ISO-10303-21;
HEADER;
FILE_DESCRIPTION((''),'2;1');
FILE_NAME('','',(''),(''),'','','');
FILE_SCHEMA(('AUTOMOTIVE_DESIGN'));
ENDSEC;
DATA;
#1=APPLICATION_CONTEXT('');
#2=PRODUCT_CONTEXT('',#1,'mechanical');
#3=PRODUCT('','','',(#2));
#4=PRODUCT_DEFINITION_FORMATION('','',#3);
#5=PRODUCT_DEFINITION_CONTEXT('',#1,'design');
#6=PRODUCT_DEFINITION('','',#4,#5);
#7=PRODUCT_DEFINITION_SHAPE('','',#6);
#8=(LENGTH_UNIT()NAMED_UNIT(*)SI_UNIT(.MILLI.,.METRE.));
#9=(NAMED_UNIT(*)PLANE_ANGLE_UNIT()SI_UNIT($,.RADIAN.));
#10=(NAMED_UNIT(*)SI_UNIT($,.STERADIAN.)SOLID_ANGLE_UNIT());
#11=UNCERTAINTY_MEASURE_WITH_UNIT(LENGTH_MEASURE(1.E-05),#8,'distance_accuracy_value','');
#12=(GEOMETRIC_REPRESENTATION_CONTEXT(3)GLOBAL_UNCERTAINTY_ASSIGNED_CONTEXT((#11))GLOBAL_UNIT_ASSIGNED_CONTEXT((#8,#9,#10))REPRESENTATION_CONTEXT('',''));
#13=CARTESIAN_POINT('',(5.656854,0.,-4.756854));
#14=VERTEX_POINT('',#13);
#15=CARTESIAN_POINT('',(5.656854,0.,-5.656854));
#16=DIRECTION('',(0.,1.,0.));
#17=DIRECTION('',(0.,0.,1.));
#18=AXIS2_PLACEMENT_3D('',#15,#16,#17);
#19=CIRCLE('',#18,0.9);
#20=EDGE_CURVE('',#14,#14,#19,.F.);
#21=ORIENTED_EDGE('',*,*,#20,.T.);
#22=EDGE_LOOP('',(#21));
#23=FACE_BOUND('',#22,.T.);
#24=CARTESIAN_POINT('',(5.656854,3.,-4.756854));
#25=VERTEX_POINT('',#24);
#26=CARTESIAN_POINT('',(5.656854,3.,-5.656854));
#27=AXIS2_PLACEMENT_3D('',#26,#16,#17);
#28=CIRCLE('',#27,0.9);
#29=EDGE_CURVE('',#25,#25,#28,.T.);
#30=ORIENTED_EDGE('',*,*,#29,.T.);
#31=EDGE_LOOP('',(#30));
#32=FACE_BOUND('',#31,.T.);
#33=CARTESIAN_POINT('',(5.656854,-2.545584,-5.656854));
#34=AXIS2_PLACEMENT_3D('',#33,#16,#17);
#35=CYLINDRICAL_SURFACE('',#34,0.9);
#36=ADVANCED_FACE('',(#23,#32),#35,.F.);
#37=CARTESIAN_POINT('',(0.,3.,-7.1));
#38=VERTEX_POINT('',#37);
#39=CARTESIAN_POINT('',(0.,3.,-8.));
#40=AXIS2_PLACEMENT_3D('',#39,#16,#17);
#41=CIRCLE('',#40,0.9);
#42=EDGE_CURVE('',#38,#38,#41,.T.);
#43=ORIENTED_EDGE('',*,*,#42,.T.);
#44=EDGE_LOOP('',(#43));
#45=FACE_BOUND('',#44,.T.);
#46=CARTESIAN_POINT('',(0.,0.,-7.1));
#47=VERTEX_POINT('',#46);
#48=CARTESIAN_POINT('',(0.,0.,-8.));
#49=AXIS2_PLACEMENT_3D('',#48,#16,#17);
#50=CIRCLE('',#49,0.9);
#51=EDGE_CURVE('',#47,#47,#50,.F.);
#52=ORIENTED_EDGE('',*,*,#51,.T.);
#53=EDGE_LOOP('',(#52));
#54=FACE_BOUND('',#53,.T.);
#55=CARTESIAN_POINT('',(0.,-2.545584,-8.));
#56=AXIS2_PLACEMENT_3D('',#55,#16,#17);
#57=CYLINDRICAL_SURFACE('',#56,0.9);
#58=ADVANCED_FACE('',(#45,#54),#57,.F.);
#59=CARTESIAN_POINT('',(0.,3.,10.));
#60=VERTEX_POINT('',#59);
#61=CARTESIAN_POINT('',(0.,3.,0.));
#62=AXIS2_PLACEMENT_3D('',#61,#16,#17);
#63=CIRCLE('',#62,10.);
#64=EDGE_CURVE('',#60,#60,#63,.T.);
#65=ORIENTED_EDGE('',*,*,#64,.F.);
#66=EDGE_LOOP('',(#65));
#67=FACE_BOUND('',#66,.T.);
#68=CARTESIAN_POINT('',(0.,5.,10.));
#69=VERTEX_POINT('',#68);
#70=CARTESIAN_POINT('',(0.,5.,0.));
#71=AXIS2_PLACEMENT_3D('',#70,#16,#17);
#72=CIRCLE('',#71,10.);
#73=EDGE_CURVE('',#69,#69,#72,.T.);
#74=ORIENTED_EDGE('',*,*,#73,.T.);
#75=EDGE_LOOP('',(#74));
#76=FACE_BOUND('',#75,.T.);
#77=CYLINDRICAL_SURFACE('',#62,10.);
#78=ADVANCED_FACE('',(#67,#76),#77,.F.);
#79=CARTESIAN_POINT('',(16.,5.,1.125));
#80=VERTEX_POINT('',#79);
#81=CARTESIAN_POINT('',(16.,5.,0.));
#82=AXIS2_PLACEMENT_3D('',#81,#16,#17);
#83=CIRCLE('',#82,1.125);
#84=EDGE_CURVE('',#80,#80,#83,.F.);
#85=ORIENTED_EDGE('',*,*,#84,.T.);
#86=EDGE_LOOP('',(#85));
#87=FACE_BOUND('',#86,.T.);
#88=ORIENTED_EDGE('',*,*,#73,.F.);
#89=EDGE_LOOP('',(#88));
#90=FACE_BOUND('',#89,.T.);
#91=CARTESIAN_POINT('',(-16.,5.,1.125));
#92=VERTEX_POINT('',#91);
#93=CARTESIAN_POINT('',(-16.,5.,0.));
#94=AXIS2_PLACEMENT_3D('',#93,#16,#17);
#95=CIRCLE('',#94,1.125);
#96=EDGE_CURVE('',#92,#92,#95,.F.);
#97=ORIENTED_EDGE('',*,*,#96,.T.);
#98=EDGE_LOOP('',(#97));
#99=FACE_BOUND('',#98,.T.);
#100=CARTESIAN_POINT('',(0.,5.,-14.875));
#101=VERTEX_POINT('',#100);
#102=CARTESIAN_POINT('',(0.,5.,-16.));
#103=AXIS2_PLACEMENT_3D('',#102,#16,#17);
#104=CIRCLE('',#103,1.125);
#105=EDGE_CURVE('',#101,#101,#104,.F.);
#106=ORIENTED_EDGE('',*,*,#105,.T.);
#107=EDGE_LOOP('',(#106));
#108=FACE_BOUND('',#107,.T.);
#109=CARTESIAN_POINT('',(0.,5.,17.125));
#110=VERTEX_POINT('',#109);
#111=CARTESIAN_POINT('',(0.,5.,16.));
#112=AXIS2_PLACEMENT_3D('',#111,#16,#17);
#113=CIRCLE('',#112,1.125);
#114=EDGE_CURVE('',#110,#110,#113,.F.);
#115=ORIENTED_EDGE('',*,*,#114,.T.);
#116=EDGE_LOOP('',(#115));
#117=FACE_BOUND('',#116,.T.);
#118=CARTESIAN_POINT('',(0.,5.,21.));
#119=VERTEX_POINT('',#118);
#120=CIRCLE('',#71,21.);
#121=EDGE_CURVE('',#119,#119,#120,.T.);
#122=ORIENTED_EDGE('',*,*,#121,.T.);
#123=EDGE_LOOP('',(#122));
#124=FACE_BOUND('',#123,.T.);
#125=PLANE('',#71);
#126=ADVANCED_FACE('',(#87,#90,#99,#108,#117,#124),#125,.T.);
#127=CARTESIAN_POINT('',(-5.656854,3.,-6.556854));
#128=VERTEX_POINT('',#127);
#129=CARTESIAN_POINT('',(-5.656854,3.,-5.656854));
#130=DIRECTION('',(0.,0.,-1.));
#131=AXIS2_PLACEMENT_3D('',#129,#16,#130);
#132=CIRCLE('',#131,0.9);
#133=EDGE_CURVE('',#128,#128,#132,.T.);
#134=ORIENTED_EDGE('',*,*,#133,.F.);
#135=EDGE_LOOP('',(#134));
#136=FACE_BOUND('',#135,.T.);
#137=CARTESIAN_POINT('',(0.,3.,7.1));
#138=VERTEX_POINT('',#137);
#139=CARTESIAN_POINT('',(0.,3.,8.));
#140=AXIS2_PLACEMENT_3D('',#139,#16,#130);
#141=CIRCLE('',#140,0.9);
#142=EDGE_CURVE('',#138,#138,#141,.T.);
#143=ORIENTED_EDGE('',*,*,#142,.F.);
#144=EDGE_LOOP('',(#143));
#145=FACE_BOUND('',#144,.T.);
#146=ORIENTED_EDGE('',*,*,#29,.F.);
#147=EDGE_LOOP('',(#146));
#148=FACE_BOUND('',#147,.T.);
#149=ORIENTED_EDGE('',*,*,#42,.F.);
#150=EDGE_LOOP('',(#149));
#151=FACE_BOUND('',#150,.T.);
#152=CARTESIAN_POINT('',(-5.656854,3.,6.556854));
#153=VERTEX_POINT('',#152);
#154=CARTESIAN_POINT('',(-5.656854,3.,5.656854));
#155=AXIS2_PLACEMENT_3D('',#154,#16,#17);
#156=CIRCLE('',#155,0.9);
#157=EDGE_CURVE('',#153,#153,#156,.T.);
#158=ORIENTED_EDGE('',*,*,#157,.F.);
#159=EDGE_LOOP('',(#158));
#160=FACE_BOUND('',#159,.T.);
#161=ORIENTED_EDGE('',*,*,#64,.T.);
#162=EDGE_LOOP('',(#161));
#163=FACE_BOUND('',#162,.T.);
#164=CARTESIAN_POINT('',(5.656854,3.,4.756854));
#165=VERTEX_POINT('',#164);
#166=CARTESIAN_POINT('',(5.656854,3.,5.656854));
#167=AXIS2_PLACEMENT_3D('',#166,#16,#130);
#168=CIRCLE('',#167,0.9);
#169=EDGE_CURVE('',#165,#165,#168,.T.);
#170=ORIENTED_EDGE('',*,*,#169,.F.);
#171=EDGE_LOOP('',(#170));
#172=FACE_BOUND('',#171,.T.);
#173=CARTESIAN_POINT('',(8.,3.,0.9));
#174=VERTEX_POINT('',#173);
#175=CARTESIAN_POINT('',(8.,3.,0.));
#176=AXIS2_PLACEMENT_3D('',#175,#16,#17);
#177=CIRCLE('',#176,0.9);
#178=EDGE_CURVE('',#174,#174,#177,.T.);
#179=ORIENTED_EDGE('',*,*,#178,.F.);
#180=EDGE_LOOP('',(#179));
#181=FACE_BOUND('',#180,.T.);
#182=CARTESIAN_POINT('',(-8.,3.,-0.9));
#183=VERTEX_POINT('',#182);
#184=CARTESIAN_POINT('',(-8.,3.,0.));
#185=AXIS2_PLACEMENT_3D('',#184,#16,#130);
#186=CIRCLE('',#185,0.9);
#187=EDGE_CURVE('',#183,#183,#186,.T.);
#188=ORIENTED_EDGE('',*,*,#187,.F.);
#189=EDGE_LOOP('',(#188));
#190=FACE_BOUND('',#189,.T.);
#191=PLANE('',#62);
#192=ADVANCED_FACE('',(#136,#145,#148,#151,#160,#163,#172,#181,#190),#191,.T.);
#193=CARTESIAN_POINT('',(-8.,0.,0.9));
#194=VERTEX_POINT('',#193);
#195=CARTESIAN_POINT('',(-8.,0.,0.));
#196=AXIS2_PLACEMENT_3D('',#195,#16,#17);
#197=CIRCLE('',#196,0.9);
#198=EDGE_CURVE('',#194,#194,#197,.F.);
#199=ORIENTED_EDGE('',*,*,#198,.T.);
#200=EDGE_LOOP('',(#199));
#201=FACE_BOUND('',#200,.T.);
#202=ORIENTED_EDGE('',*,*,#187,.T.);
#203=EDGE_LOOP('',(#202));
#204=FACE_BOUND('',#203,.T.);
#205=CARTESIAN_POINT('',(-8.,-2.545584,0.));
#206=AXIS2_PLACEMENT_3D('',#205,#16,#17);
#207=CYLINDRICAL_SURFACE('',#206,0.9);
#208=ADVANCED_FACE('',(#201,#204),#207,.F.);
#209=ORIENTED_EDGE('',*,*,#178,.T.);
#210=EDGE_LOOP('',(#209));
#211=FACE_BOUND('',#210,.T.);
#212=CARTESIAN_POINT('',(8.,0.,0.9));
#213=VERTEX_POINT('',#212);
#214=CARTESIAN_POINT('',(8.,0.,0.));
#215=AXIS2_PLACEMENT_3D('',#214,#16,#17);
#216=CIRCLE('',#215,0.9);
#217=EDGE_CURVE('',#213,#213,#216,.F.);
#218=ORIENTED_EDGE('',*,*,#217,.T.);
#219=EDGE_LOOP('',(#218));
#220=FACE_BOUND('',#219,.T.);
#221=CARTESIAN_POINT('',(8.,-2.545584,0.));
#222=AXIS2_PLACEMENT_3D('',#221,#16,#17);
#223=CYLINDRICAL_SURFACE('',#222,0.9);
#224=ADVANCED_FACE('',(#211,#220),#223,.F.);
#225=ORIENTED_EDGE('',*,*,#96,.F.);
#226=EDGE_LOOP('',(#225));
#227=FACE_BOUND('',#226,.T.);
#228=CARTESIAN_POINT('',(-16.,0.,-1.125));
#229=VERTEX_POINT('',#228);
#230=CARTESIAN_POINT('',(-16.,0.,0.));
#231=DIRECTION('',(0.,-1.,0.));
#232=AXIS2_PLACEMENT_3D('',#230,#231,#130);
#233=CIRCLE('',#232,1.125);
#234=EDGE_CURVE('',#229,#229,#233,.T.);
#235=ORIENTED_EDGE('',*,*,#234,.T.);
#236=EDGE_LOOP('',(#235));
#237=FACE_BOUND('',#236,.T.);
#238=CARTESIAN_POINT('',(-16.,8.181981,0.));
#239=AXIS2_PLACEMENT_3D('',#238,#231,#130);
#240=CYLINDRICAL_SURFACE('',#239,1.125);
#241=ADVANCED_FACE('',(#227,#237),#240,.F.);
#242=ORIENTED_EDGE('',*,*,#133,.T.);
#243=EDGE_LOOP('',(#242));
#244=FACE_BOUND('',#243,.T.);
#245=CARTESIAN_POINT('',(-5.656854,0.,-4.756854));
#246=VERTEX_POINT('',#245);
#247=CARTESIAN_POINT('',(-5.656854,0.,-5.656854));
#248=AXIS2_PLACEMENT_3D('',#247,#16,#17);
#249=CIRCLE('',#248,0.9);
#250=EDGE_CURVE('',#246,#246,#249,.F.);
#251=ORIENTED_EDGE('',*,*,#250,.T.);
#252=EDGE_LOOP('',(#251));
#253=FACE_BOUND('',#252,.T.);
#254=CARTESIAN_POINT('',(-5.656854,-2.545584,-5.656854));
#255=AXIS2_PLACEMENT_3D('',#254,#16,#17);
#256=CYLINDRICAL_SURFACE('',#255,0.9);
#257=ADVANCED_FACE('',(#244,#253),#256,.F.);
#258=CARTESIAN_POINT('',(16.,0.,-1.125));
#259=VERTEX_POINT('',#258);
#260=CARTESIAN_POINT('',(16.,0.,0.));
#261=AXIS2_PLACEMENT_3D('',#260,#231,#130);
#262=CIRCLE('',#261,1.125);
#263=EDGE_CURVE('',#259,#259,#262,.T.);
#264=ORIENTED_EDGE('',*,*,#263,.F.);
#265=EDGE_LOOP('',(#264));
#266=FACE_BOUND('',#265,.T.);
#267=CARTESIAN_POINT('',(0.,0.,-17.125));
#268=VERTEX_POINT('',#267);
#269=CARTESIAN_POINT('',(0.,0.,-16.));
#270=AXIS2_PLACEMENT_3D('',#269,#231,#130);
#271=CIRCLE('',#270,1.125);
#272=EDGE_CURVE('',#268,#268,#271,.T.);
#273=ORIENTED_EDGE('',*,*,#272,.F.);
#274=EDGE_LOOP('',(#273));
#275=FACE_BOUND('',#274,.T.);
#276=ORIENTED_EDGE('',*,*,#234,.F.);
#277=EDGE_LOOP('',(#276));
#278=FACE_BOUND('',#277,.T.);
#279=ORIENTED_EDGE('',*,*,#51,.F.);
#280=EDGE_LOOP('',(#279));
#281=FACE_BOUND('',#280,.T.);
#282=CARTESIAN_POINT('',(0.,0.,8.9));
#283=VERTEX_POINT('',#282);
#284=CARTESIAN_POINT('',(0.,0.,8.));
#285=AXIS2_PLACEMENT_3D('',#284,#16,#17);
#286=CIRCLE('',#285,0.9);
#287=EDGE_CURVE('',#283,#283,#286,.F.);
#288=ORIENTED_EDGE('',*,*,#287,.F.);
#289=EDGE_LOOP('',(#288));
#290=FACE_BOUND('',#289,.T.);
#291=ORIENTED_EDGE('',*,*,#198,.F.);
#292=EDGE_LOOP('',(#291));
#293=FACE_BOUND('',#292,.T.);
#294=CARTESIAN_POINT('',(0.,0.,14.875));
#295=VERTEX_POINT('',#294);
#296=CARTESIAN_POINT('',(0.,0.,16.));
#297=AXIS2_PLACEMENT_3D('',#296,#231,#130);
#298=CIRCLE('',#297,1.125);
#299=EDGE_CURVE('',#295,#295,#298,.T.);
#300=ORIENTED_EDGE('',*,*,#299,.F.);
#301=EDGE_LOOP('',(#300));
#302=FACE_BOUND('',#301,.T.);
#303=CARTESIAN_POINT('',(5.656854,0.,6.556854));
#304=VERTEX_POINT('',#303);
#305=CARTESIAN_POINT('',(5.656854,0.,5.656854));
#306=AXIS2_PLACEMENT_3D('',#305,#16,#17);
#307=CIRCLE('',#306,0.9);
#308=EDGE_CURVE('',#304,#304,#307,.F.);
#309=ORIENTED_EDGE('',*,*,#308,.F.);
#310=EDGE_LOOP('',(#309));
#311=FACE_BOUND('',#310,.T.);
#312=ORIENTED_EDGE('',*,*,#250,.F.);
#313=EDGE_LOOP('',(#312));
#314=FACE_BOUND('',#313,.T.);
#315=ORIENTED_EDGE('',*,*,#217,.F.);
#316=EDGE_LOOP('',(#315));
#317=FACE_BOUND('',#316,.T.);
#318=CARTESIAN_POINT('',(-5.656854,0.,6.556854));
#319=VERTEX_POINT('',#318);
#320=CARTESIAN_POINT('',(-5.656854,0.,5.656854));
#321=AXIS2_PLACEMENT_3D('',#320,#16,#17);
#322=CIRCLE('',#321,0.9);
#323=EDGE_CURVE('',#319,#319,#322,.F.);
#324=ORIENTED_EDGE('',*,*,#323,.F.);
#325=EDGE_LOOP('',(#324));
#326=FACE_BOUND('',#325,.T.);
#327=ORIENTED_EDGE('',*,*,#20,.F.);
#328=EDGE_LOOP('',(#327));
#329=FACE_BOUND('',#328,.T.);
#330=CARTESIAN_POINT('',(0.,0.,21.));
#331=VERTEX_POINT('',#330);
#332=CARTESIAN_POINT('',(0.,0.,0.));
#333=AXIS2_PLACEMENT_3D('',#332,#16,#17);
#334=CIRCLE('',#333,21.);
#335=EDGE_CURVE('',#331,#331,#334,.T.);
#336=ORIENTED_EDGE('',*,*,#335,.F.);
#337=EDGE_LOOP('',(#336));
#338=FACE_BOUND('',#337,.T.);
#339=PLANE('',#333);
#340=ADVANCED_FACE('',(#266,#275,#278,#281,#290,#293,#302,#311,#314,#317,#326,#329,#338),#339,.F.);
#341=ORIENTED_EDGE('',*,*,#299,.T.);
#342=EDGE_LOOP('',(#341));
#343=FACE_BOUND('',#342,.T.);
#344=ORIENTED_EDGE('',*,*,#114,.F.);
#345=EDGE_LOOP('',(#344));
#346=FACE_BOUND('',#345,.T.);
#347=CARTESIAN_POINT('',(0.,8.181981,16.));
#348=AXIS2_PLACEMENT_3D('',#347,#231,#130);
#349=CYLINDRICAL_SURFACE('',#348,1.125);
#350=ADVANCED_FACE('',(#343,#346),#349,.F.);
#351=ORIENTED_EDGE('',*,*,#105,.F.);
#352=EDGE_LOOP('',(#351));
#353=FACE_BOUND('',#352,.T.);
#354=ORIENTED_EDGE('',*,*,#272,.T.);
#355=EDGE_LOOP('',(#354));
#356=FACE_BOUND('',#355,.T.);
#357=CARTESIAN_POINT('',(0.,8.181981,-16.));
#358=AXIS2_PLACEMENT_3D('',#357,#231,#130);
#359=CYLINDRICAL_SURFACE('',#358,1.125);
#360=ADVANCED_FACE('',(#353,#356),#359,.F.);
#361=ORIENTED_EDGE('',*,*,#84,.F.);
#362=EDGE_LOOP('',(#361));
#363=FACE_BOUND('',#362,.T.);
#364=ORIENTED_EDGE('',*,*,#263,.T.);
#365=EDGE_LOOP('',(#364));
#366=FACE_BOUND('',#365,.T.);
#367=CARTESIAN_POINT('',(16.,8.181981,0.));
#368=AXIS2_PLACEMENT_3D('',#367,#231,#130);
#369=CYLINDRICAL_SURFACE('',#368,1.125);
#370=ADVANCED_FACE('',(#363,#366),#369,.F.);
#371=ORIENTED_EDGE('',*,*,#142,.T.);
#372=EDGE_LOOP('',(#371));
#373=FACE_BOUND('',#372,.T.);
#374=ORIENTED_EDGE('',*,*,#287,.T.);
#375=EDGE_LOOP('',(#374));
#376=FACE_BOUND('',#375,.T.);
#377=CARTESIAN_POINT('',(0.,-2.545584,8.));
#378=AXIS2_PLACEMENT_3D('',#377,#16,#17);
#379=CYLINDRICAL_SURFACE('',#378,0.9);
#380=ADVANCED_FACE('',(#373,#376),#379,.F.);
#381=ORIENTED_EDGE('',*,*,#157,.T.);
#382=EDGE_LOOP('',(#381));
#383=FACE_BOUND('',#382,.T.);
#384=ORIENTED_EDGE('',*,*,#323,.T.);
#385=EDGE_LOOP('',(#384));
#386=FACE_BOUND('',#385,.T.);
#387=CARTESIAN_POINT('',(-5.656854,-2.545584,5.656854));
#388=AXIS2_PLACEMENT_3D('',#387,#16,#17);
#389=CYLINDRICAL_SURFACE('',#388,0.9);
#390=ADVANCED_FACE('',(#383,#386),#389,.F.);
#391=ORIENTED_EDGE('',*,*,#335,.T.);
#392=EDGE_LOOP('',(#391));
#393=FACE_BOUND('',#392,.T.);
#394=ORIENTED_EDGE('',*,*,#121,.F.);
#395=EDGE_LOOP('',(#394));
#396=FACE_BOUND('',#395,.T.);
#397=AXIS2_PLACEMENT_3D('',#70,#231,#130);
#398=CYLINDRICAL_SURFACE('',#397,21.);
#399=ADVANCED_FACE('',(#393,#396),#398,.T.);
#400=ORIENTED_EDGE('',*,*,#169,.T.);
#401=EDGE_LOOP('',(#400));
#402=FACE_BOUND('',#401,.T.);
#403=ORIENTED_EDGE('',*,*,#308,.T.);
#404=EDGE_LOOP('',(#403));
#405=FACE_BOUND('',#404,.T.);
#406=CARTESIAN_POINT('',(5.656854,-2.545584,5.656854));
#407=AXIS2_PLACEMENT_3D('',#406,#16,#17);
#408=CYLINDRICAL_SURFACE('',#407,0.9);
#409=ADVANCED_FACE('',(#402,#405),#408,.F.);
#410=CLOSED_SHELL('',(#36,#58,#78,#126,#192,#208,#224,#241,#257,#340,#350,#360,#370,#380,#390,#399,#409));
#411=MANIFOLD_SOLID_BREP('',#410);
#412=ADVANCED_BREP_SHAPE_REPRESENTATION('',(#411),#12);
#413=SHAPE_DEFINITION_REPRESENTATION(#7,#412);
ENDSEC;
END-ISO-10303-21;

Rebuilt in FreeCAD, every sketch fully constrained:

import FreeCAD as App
import Part
import Sketcher
Q = App.Units.Quantity

doc = App.newDocument("Part")
params = doc.addObject("Spreadsheet::Sheet", "Params")
for row, (alias, value) in enumerate([
    ("sketch1_diameter", "42 mm"),
    ("pad1_length", "5 mm"),
    ("sketch2_diameter", "20 mm"),
    ("pocket1_length", "2 mm"),
    ("sketch3_diameter", "1.8 mm"),
    ("pocket2_length", "3 mm"),
    ("sketch4_diameter", "2.25 mm"),
    ("pocket3_length", "5 mm"),
], start=1):
    params.set(f"A{row}", alias)
    params.set(f"B{row}", "=" + value)
    params.setAlias(f"B{row}", alias)

body = doc.addObject("PartDesign::Body", "Body")

# Sketch on XZ plane
sketch1 = body.newObject("Sketcher::SketchObject", "Sketch")
sketch1.AttachmentSupport = (doc.getObject("XZ_Plane"), [""])
sketch1.MapMode = "FlatFace"
sketch1.addGeometry(Part.Circle(App.Vector(0, 0, 0), App.Vector(0, 0, 1), 21), False)
sketch1.addConstraint([
    Sketcher.Constraint("Coincident", 0, 3, -1, 1),
    Sketcher.Constraint("Diameter", 0, Q("42 mm")),
])
sketch1.setExpression("Constraints[1]", "Params.sketch1_diameter")
pad1 = body.newObject("PartDesign::Pad", "Pad")
pad1.Profile = sketch1
pad1.setExpression("Length", "Params.pad1_length")
pad1.Reversed = True

# Sketch on XZ plane
sketch2 = body.newObject("Sketcher::SketchObject", "Sketch001")
sketch2.AttachmentSupport = (doc.getObject("XZ_Plane"), [""])
sketch2.MapMode = "FlatFace"
sketch2.AttachmentOffset = App.Placement(App.Vector(0, 0, -5), App.Rotation())
sketch2.addGeometry(Part.Circle(App.Vector(0, 0, 0), App.Vector(0, 0, 1), 10), False)
sketch2.addConstraint([
    Sketcher.Constraint("Coincident", 0, 3, -1, 1),
    Sketcher.Constraint("Diameter", 0, Q("20 mm")),
])
sketch2.setExpression("Constraints[1]", "Params.sketch2_diameter")
pocket1 = body.newObject("PartDesign::Pocket", "Pocket")
pocket1.Profile = sketch2
pocket1.setExpression("Length", "Params.pocket1_length")
pocket1.Reversed = True

# Sketch on XZ plane
sketch3 = body.newObject("Sketcher::SketchObject", "Sketch002")
sketch3.AttachmentSupport = (doc.getObject("XZ_Plane"), [""])
sketch3.MapMode = "FlatFace"
sketch3.AttachmentOffset = App.Placement(App.Vector(0, 0, -3), App.Rotation())
sketch3.addGeometry([
    Part.Circle(App.Vector(5.7, -5.7, 0), App.Vector(0, 0, 1), 0.9),  # 0
    Part.Circle(App.Vector(8, 0, 0), App.Vector(0, 0, 1), 0.9),  # 1
    Part.Circle(App.Vector(0, -8, 0), App.Vector(0, 0, 1), 0.9),  # 2
    Part.Circle(App.Vector(5.7, 5.7, 0), App.Vector(0, 0, 1), 0.9),  # 3
    Part.Circle(App.Vector(0, 8, 0), App.Vector(0, 0, 1), 0.9),  # 4
    Part.Circle(App.Vector(-5.7, 5.7, 0), App.Vector(0, 0, 1), 0.9),  # 5
    Part.Circle(App.Vector(-8, 0, 0), App.Vector(0, 0, 1), 0.9),  # 6
    Part.Circle(App.Vector(-5.7, -5.7, 0), App.Vector(0, 0, 1), 0.9),  # 7
], False)
sketch3.addConstraint([
    Sketcher.Constraint("Equal", 0, 1),
    Sketcher.Constraint("Equal", 1, 2),
    Sketcher.Constraint("Equal", 2, 3),
    Sketcher.Constraint("Equal", 3, 4),
    Sketcher.Constraint("Equal", 4, 5),
    Sketcher.Constraint("Equal", 5, 6),
    Sketcher.Constraint("Equal", 6, 7),
    Sketcher.Constraint("Symmetric", 2, 3, 4, 3, -1, 1),
    Sketcher.Constraint("Symmetric", 0, 3, 5, 3, -1, 1),
    Sketcher.Constraint("Symmetric", 1, 3, 6, 3, -1, 1),
    Sketcher.Constraint("Symmetric", 3, 3, 7, 3, -1, 1),
    Sketcher.Constraint("Symmetric", 3, 3, 5, 3, -2),
    Sketcher.Constraint("PointOnObject", 1, 3, -1),
    Sketcher.Constraint("PointOnObject", 2, 3, -2),
    Sketcher.Constraint("Diameter", 0, Q("1.8 mm")),
    Sketcher.Constraint("DistanceX", -1, 1, 1, 3, Q("8 mm")),
    Sketcher.Constraint("DistanceY", 2, 3, -1, 1, Q("8 mm")),
    Sketcher.Constraint("DistanceY", 0, 3, 3, 3, Q("11.313708 mm")),
    Sketcher.Constraint("DistanceX", 5, 3, 3, 3, Q("11.313708 mm")),
])
sketch3.setExpression("Constraints[14]", "Params.sketch3_diameter")
pocket2 = body.newObject("PartDesign::Pocket", "Pocket001")
pocket2.Profile = sketch3
pocket2.setExpression("Length", "Params.pocket2_length")
pocket2.Reversed = True

# Sketch on XZ plane
sketch4 = body.newObject("Sketcher::SketchObject", "Sketch003")
sketch4.AttachmentSupport = (doc.getObject("XZ_Plane"), [""])
sketch4.MapMode = "FlatFace"
sketch4.addGeometry([
    Part.Circle(App.Vector(0, -16, 0), App.Vector(0, 0, 1), 1.1),
    Part.Circle(App.Vector(-16, 0, 0), App.Vector(0, 0, 1), 1.1),
    Part.Circle(App.Vector(0, 16, 0), App.Vector(0, 0, 1), 1.1),
    Part.Circle(App.Vector(16, 0, 0), App.Vector(0, 0, 1), 1.1),
], False)
sketch4.addConstraint([
    Sketcher.Constraint("Equal", 0, 1),
    Sketcher.Constraint("Equal", 1, 2),
    Sketcher.Constraint("Equal", 2, 3),
    Sketcher.Constraint("Symmetric", 0, 3, 2, 3, -1, 1),
    Sketcher.Constraint("Symmetric", 1, 3, 3, 3, -1, 1),
    Sketcher.Constraint("PointOnObject", 0, 3, -2),
    Sketcher.Constraint("PointOnObject", 1, 3, -1),
    Sketcher.Constraint("Diameter", 0, Q("2.25 mm")),
    Sketcher.Constraint("DistanceY", 0, 3, -1, 1, Q("16 mm")),
    Sketcher.Constraint("DistanceX", 1, 3, -1, 1, Q("16 mm")),
])
sketch4.setExpression("Constraints[7]", "Params.sketch4_diameter")
pocket3 = body.newObject("PartDesign::Pocket", "Pocket002")
pocket3.Profile = sketch4
pocket3.setExpression("Length", "Params.pocket3_length")

doc.recompute()
